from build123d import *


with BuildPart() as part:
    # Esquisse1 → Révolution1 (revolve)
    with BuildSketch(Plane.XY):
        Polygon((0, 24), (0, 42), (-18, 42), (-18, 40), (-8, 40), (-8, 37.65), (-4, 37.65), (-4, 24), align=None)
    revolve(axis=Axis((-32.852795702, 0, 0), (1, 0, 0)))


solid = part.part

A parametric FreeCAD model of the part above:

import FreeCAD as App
import Part
import Sketcher
from FreeCAD import Vector

doc = App.newDocument("Part")
params = doc.addObject("Spreadsheet::Sheet", "Params")
for row, (alias, value) in enumerate([
    ("sketch1_width", "18 mm"),
    ("sketch1_width2", "10 mm"),
    ("sketch1_height", "2 mm"),
    ("sketch1_height2", "2.35 mm"),
    ("revolution_angle", "360 deg"),
], start=1):
    params.set(f"A{row}", alias)
    params.set(f"B{row}", "=" + value)
    params.setAlias(f"B{row}", alias)

body = doc.addObject("PartDesign::Body", "Body")

# Sketch on XY plane
sketch1 = body.newObject("Sketcher::SketchObject", "Sketch")
sketch1.AttachmentSupport = (doc.getObject("XY_Plane"), [""])
sketch1.MapMode = "FlatFace"
sketch1.addGeometry(Part.LineSegment(Vector(0, 24, 0), Vector(0, 42, 0)), False)
sketch1.addGeometry(Part.LineSegment(Vector(0, 42, 0), Vector(-18, 42, 0)), False)
sketch1.addGeometry(Part.LineSegment(Vector(-18, 42, 0), Vector(-18, 40, 0)), False)
sketch1.addGeometry(Part.LineSegment(Vector(-18, 40, 0), Vector(-8, 40, 0)), False)
sketch1.addGeometry(Part.LineSegment(Vector(-8, 40, 0), Vector(-8, 37.65, 0)), False)
sketch1.addGeometry(Part.LineSegment(Vector(-8, 37.65, 0), Vector(-4, 37.65, 0)), False)
sketch1.addGeometry(Part.LineSegment(Vector(-4, 37.65, 0), Vector(-4, 24, 0)), False)
sketch1.addGeometry(Part.LineSegment(Vector(-4, 24, 0), Vector(0, 24, 0)), False)
sketch1.addConstraint(Sketcher.Constraint("Coincident", 0, 2, 1, 1))
sketch1.addConstraint(Sketcher.Constraint("Coincident", 1, 2, 2, 1))
sketch1.addConstraint(Sketcher.Constraint("Coincident", 2, 2, 3, 1))
sketch1.addConstraint(Sketcher.Constraint("Coincident", 3, 2, 4, 1))
sketch1.addConstraint(Sketcher.Constraint("Coincident", 4, 2, 5, 1))
sketch1.addConstraint(Sketcher.Constraint("Coincident", 5, 2, 6, 1))
sketch1.addConstraint(Sketcher.Constraint("Coincident", 6, 2, 7, 1))
sketch1.addConstraint(Sketcher.Constraint("Coincident", 7, 2, 0, 1))
sketch1.addConstraint(Sketcher.Constraint("Vertical", 0))
sketch1.addConstraint(Sketcher.Constraint("Horizontal", 1))
sketch1.addConstraint(Sketcher.Constraint("Vertical", 2))
sketch1.addConstraint(Sketcher.Constraint("Horizontal", 3))
sketch1.addConstraint(Sketcher.Constraint("Vertical", 4))
sketch1.addConstraint(Sketcher.Constraint("Horizontal", 5))
sketch1.addConstraint(Sketcher.Constraint("Vertical", 6))
sketch1.addConstraint(Sketcher.Constraint("Horizontal", 7))
sketch1.addConstraint(Sketcher.Constraint("PointOnObject", 0, 2, -2))
sketch1.addConstraint(Sketcher.Constraint("Equal", 5, 7))
sketch1.addConstraint(Sketcher.Constraint("Equal", 1, 0))
sketch1.addConstraint(Sketcher.Constraint("DistanceX", 1, 2, 1, 1, 18.0))
sketch1.addConstraint(Sketcher.Constraint("DistanceX", 3, 1, 3, 2, 10.0))
sketch1.addConstraint(Sketcher.Constraint("DistanceY", 2, 2, 2, 1, 2.0))
sketch1.addConstraint(Sketcher.Constraint("DistanceY", -1, 1, 0, 2, 42.0))
sketch1.addConstraint(Sketcher.Constraint("DistanceY", 4, 2, 4, 1, 2.35))
sketch1.setExpression("Constraints[19]", "Params.sketch1_width")
sketch1.setExpression("Constraints[20]", "Params.sketch1_width2")
sketch1.setExpression("Constraints[21]", "Params.sketch1_height")
sketch1.setExpression("Constraints[23]", "Params.sketch1_height2")
revolution = body.newObject("PartDesign::Revolution", "Revolution")
revolution.Profile = sketch1
revolution.ReferenceAxis = (sketch1, ["H_Axis"])
revolution.setExpression("Angle", "Params.revolution_angle")

doc.recompute()
